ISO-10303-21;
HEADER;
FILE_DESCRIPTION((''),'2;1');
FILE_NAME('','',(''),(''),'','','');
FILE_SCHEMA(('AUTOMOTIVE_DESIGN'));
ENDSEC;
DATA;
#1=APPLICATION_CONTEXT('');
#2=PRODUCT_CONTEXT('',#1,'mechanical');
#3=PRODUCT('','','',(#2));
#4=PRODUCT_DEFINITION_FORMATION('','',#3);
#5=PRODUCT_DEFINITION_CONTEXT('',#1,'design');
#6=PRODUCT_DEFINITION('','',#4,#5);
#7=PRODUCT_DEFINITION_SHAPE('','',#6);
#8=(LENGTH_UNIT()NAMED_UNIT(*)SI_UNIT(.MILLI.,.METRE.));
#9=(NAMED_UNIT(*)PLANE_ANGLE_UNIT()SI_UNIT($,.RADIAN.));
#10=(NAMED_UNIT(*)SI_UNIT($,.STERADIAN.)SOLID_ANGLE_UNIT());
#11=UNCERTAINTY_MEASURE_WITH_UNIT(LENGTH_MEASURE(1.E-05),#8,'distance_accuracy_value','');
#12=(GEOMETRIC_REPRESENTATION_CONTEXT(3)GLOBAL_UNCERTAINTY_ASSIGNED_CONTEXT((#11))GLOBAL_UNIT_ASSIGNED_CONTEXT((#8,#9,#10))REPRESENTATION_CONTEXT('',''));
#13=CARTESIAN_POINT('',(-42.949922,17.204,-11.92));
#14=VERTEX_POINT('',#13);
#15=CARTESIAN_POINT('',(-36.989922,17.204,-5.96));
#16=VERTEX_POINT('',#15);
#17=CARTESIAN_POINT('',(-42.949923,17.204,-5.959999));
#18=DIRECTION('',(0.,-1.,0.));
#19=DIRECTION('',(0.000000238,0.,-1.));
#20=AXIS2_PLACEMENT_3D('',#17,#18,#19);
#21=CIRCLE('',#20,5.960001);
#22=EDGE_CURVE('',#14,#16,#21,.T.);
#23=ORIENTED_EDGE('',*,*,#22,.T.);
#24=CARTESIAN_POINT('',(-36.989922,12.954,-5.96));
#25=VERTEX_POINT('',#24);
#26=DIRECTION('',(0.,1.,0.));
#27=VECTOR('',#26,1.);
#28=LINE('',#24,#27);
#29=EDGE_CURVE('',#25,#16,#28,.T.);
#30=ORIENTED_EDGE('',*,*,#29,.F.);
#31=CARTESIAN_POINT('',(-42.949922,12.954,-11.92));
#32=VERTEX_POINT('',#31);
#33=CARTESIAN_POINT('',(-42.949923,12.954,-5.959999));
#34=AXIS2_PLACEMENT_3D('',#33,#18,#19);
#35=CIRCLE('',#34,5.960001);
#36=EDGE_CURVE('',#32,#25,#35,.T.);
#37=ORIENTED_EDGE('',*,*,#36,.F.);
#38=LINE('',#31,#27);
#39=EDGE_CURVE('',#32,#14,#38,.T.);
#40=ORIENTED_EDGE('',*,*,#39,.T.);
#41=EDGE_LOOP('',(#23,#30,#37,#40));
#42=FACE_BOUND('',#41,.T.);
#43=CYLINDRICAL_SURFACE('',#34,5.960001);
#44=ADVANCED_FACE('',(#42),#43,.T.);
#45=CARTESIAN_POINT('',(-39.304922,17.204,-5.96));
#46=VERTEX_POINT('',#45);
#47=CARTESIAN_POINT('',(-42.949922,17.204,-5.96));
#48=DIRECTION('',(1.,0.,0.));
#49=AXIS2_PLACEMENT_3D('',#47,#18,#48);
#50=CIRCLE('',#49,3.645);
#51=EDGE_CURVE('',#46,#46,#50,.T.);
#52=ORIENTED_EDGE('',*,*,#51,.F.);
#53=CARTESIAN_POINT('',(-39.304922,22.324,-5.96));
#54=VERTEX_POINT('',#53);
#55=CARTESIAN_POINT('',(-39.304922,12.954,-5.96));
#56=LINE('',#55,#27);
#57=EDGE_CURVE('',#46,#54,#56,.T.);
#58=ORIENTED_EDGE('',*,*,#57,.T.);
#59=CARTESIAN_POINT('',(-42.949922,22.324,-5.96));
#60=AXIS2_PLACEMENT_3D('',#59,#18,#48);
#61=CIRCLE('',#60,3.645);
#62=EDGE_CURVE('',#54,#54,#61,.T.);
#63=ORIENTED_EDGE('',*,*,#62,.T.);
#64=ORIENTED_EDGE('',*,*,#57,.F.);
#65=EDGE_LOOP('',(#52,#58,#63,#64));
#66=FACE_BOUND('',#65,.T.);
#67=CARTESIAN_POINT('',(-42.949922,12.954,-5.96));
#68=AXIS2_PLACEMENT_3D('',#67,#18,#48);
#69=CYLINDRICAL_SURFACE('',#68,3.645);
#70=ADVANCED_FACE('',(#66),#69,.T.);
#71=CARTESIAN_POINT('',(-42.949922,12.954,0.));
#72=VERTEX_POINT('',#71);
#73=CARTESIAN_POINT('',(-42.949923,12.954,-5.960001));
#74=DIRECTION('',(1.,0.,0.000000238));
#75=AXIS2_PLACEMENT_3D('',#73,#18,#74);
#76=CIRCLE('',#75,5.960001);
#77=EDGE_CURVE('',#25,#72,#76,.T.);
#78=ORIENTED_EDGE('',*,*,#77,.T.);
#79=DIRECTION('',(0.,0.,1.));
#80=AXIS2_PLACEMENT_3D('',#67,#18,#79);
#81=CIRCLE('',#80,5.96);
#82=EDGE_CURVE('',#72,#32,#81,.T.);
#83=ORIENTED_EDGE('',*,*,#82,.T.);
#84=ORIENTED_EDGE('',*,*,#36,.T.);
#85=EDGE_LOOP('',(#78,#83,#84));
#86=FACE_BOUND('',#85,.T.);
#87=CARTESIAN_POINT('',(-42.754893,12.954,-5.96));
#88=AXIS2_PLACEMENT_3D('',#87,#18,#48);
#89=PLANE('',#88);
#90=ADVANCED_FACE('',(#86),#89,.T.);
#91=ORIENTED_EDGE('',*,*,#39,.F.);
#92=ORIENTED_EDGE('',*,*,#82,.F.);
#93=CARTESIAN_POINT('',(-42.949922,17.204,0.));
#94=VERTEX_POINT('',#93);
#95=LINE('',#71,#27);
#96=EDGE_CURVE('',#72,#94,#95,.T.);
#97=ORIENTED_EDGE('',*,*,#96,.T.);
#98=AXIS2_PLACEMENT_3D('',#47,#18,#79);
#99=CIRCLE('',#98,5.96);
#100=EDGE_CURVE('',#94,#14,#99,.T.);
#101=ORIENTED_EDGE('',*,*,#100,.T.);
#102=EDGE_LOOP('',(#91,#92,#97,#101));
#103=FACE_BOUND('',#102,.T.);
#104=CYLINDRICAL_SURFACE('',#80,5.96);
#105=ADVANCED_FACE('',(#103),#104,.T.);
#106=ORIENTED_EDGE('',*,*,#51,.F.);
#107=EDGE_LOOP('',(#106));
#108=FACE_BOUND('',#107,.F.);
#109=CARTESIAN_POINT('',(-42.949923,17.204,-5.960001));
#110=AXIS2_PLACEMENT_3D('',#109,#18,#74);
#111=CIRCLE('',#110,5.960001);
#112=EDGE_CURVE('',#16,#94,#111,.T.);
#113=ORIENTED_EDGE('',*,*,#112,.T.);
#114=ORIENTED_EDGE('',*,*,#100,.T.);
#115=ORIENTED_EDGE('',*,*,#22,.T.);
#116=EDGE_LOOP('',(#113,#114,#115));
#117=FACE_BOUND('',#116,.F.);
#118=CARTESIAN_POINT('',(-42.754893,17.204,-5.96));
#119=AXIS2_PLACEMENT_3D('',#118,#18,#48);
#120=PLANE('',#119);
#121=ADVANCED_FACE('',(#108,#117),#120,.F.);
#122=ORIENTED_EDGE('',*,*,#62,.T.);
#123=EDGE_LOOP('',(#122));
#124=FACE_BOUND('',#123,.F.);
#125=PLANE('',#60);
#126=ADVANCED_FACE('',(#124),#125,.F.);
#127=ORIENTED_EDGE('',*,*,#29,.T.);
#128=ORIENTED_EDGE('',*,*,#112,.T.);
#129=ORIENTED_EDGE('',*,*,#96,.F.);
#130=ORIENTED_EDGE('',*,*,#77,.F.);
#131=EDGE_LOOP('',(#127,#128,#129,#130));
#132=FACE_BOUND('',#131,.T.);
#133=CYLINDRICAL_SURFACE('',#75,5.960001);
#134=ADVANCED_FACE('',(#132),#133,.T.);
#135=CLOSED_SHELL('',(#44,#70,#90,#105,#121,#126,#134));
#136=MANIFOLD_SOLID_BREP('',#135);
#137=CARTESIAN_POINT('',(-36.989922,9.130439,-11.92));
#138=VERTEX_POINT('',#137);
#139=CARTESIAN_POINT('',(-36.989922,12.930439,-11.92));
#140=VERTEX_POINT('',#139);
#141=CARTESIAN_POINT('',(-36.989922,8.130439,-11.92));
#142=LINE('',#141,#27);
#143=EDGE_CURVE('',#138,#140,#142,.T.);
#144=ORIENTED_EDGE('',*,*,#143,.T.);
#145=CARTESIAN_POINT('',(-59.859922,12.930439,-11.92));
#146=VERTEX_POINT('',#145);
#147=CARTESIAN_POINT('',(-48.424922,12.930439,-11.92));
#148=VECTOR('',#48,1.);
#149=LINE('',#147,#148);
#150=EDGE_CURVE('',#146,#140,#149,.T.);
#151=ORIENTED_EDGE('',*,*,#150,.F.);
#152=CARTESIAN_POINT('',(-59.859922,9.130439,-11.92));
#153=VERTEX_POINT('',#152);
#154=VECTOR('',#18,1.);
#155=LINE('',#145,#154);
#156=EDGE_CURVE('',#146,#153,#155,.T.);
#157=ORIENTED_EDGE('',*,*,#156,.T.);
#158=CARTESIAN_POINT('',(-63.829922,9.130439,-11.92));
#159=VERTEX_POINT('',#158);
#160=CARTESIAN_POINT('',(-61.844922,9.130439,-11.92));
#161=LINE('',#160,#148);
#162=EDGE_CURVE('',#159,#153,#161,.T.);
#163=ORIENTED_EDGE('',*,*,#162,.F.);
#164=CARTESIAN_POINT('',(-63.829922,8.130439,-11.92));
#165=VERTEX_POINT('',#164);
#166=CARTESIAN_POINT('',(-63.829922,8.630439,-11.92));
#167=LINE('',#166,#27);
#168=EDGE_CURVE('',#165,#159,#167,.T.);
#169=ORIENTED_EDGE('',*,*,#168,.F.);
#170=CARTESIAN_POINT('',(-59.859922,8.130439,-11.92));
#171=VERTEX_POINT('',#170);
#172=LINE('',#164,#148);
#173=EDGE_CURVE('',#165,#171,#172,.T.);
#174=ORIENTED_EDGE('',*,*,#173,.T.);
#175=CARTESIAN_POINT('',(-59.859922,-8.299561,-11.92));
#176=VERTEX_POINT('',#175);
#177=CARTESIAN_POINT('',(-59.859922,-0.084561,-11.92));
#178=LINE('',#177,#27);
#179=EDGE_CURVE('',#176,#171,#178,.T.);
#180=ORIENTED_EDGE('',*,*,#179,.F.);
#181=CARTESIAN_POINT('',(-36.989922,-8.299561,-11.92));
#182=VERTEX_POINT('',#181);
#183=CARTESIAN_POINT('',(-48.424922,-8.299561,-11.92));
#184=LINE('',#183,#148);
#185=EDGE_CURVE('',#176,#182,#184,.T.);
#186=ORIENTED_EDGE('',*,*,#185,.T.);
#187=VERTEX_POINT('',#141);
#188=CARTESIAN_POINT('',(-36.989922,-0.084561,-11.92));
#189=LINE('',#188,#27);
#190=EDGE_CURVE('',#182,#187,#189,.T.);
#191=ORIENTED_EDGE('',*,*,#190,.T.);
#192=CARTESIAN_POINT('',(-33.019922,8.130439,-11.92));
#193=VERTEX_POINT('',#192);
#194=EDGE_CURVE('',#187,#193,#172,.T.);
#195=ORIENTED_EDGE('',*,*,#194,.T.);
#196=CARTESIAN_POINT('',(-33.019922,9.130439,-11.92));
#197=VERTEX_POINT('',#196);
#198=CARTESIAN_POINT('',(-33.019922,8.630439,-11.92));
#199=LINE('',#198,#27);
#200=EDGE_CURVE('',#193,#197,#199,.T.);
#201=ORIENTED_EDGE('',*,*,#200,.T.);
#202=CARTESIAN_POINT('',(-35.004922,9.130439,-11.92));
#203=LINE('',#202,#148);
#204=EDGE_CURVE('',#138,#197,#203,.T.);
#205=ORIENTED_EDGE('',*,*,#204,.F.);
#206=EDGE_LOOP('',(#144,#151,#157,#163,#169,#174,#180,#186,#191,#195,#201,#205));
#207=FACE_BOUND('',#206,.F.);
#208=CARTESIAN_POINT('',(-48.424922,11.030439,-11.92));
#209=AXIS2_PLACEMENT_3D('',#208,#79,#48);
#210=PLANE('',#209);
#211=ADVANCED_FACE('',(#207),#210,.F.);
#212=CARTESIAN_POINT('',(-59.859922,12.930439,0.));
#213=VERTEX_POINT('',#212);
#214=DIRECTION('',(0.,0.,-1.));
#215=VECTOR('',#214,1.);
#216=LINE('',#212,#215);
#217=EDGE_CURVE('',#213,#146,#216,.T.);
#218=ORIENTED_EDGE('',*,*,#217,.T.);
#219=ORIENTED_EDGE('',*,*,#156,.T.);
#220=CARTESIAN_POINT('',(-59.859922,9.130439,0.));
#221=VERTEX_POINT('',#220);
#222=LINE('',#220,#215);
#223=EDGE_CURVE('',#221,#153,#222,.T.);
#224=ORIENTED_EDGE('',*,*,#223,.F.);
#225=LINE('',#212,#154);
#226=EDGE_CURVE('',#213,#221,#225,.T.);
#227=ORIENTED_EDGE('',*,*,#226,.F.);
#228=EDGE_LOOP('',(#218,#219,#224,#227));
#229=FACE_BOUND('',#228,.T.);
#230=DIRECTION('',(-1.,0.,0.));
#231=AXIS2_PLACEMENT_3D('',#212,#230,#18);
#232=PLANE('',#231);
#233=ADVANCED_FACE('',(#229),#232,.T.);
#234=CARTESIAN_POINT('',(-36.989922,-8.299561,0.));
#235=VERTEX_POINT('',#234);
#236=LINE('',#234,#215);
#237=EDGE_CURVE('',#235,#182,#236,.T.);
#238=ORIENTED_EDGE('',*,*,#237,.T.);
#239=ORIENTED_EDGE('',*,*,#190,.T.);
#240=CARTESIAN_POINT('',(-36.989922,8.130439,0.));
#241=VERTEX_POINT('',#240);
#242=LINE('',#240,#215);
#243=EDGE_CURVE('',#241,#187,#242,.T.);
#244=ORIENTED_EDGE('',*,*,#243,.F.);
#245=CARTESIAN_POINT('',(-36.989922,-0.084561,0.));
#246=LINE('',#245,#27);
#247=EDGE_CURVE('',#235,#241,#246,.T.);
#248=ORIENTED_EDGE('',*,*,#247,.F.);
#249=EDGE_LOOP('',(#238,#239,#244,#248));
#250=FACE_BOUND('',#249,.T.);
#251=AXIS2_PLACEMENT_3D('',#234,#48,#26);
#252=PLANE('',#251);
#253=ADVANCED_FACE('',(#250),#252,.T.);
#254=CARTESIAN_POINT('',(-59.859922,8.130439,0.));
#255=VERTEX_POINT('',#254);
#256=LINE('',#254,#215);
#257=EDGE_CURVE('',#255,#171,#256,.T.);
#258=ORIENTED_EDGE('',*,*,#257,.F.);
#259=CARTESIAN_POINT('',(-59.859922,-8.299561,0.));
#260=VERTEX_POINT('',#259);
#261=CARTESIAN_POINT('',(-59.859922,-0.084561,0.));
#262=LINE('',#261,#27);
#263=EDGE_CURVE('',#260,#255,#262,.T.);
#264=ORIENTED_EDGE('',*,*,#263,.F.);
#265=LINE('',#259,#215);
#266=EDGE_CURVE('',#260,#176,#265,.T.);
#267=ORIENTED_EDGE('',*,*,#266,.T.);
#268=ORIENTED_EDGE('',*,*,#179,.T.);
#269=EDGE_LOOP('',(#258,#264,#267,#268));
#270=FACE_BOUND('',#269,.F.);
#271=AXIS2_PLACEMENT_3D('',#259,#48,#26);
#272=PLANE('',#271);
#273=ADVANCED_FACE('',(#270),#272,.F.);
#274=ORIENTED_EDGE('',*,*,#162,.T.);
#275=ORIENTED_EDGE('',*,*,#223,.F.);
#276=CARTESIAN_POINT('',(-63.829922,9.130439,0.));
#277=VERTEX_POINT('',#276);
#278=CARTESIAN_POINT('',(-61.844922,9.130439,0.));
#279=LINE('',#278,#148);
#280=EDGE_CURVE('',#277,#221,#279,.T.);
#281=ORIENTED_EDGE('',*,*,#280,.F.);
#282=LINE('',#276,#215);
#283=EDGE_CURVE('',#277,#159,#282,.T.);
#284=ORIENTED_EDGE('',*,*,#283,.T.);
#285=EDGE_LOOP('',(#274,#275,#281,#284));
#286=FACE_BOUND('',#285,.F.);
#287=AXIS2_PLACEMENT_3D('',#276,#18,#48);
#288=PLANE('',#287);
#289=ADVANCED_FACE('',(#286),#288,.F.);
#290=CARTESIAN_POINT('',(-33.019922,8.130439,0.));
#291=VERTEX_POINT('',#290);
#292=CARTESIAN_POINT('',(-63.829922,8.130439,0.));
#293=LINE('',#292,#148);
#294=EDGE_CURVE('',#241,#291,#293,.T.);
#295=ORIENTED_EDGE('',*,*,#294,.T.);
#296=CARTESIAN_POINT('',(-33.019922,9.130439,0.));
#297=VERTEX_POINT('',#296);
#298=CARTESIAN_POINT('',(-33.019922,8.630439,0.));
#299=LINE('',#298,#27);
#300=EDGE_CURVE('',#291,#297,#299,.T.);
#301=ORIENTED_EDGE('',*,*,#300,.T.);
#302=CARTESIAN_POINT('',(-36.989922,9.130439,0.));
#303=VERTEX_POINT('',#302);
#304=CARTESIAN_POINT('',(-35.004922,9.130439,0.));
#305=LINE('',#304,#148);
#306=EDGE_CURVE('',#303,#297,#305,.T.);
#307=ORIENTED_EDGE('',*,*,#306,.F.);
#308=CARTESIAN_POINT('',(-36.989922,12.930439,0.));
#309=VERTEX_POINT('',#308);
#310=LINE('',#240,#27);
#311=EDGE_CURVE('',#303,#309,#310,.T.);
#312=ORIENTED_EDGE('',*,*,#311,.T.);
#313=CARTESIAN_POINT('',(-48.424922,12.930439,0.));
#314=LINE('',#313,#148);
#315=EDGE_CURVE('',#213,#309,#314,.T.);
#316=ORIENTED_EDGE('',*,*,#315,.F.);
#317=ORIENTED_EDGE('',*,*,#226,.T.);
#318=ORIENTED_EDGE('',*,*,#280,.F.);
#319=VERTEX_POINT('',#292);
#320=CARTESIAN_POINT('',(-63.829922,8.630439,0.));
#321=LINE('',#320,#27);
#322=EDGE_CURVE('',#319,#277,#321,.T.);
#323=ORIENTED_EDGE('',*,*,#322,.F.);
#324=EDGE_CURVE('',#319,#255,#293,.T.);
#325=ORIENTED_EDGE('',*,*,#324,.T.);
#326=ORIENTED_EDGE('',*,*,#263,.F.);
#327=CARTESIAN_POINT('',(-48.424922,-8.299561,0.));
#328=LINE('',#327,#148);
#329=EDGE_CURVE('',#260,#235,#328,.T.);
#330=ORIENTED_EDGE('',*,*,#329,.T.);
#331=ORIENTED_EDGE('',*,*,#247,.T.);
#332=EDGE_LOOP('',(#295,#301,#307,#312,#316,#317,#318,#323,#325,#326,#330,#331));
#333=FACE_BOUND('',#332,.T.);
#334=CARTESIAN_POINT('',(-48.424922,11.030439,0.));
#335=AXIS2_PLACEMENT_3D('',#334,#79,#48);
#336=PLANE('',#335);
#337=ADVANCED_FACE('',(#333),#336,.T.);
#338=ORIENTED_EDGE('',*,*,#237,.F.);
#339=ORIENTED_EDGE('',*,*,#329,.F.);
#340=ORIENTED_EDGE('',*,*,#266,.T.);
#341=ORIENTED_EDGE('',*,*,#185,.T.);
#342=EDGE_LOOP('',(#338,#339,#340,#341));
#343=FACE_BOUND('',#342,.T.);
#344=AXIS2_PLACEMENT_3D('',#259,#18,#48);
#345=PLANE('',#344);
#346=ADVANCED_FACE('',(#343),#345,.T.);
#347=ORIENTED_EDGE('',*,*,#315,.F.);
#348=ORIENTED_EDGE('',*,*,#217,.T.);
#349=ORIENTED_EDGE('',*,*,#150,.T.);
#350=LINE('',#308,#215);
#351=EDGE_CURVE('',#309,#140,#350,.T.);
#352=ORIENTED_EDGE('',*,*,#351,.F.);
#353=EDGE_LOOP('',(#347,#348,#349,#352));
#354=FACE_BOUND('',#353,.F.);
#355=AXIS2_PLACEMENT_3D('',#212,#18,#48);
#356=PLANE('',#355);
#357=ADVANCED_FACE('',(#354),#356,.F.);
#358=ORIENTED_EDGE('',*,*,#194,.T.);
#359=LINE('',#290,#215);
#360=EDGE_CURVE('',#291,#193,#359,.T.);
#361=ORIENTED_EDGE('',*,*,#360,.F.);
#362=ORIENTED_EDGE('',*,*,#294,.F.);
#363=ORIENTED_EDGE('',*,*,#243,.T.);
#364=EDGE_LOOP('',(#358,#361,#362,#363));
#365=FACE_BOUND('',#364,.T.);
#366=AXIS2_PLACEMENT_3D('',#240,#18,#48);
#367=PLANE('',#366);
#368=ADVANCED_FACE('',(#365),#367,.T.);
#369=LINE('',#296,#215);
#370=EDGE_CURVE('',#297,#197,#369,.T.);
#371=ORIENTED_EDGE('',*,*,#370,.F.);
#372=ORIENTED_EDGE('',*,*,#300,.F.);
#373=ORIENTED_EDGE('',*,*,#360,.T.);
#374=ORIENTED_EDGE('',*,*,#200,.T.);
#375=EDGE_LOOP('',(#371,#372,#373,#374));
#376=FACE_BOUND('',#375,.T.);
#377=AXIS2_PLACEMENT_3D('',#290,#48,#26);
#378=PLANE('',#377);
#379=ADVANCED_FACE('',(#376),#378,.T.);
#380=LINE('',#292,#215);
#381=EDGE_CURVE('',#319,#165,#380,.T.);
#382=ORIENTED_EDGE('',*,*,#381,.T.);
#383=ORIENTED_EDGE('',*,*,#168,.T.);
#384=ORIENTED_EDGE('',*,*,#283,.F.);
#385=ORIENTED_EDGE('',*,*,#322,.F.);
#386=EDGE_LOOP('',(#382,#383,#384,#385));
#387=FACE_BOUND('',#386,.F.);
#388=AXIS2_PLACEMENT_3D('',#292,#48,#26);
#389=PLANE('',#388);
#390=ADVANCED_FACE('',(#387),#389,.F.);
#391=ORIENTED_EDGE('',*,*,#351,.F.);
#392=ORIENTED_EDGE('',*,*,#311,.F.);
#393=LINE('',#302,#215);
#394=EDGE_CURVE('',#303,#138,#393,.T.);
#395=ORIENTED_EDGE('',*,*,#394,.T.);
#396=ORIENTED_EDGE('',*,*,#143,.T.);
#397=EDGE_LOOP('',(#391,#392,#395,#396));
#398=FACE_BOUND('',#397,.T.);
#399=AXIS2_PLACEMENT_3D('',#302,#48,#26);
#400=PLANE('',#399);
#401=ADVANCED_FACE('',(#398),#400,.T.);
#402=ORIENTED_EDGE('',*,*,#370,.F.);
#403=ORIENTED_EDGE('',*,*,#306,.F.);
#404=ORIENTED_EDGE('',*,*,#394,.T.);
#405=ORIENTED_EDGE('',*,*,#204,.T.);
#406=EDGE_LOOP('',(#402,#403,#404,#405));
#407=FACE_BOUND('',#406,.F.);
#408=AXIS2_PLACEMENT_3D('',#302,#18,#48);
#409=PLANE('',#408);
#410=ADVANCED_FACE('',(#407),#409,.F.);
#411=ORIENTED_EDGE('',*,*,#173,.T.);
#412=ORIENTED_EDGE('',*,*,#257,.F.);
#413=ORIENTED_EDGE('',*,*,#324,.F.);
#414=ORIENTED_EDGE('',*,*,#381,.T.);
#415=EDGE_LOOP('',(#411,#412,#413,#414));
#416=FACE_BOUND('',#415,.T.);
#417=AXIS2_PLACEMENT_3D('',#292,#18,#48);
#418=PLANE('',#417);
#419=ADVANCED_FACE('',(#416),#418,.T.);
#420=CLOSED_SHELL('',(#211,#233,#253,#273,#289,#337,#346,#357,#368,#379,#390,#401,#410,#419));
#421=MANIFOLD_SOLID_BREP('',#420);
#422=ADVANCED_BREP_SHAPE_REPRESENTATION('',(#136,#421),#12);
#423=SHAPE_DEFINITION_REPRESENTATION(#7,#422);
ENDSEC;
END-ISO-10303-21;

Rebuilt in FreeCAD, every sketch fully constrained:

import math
import FreeCAD as App
import Part
import Sketcher

V = App.Vector

doc = App.newDocument("Part")
body = doc.addObject("PartDesign::Body", "Body")

sketch1 = body.newObject("Sketcher::SketchObject", "Sketch")
sketch1.AttachmentSupport = (doc.getObject("XY_Plane"), [""])
sketch1.MapMode = "FlatFace"
sketch1.addGeometry(Part.LineSegment(V(-59.9, 12.9, 0), V(-59.9, 9.1, 0)), False)
sketch1.addGeometry(Part.LineSegment(V(-59.9, 9.1, 0), V(-63.8, 9.1, 0)), False)
sketch1.addGeometry(Part.LineSegment(V(-63.8, 9.1, 0), V(-63.8, 8.1, 0)), False)
sketch1.addGeometry(Part.LineSegment(V(-63.8, 8.1, 0), V(-59.9, 8.1, 0)), False)
sketch1.addGeometry(Part.LineSegment(V(-59.9, 8.1, 0), V(-59.9, -8.3, 0)), False)
sketch1.addGeometry(Part.LineSegment(V(-59.9, -8.3, 0), V(-37, -8.3, 0)), False)
sketch1.addGeometry(Part.LineSegment(V(-37, -8.3, 0), V(-37, 8.1, 0)), False)
sketch1.addGeometry(Part.LineSegment(V(-37, 8.1, 0), V(-33, 8.1, 0)), False)
sketch1.addGeometry(Part.LineSegment(V(-33, 8.1, 0), V(-33, 9.1, 0)), False)
sketch1.addGeometry(Part.LineSegment(V(-33, 9.1, 0), V(-37, 9.1, 0)), False)
sketch1.addGeometry(Part.LineSegment(V(-37, 9.1, 0), V(-37, 12.9, 0)), False)
sketch1.addGeometry(Part.LineSegment(V(-37, 12.9, 0), V(-59.9, 12.9, 0)), False)
sketch1.addConstraint(Sketcher.Constraint("Coincident", 0, 2, 1, 1))
sketch1.addConstraint(Sketcher.Constraint("Coincident", 1, 2, 2, 1))
sketch1.addConstraint(Sketcher.Constraint("Coincident", 2, 2, 3, 1))
sketch1.addConstraint(Sketcher.Constraint("Coincident", 3, 2, 4, 1))
sketch1.addConstraint(Sketcher.Constraint("Coincident", 4, 2, 5, 1))
sketch1.addConstraint(Sketcher.Constraint("Coincident", 5, 2, 6, 1))
sketch1.addConstraint(Sketcher.Constraint("Coincident", 6, 2, 7, 1))
sketch1.addConstraint(Sketcher.Constraint("Coincident", 7, 2, 8, 1))
sketch1.addConstraint(Sketcher.Constraint("Coincident", 8, 2, 9, 1))
sketch1.addConstraint(Sketcher.Constraint("Coincident", 9, 2, 10, 1))
sketch1.addConstraint(Sketcher.Constraint("Coincident", 10, 2, 11, 1))
sketch1.addConstraint(Sketcher.Constraint("Coincident", 11, 2, 0, 1))
sketch1.addConstraint(Sketcher.Constraint("Vertical", 0))
sketch1.addConstraint(Sketcher.Constraint("Horizontal", 1))
sketch1.addConstraint(Sketcher.Constraint("Vertical", 2))
sketch1.addConstraint(Sketcher.Constraint("Horizontal", 3))
sketch1.addConstraint(Sketcher.Constraint("Vertical", 4))
sketch1.addConstraint(Sketcher.Constraint("Horizontal", 5))
sketch1.addConstraint(Sketcher.Constraint("Vertical", 6))
sketch1.addConstraint(Sketcher.Constraint("Horizontal", 7))
sketch1.addConstraint(Sketcher.Constraint("Vertical", 8))
sketch1.addConstraint(Sketcher.Constraint("Horizontal", 9))
sketch1.addConstraint(Sketcher.Constraint("Vertical", 10))
sketch1.addConstraint(Sketcher.Constraint("Horizontal", 11))
sketch1.addConstraint(Sketcher.Constraint("Horizontal", 3, 2, 6, 2))
sketch1.addConstraint(Sketcher.Constraint("Horizontal", 1, 2, 8, 2))
sketch1.addConstraint(Sketcher.Constraint("Vertical", 0, 2, 3, 2))
sketch1.addConstraint(Sketcher.Constraint("Vertical", 6, 2, 9, 2))
sketch1.addConstraint(Sketcher.Constraint("Equal", 3, 7))
sketch1.addConstraint(Sketcher.Constraint("DistanceY", 2, 2, 2, 1, 1.0))
sketch1.addConstraint(Sketcher.Constraint("DistanceY", 0, 2, 0, 1, 3.8))
sketch1.addConstraint(Sketcher.Constraint("DistanceX", 1, 2, 1, 1, 3.97))
sketch1.addConstraint(Sketcher.Constraint("DistanceX", 5, 1, 5, 2, 22.87))
sketch1.addConstraint(Sketcher.Constraint("DistanceY", 4, 2, 4, 1, 16.43))
sketch1.addConstraint(Sketcher.Constraint("DistanceX", 0, 2, -1, 1, 59.859922))
sketch1.addConstraint(Sketcher.Constraint("DistanceY", -1, 1, 0, 2, 9.130439))
pad1 = body.newObject("PartDesign::Pad", "Pad")
pad1.Profile = sketch1
pad1.Length = 11.92
pad1.Reversed = True
body2 = doc.addObject("PartDesign::Body", "Body001")

sketch2 = body2.newObject("Sketcher::SketchObject", "Sketch001")
sketch2.AttachmentSupport = (doc.getObject("XZ_Plane001"), [""])
sketch2.MapMode = "FlatFace"
sketch2.AttachmentOffset = App.Placement(V(0, 0, -12.954), App.Rotation())
sketch2.addGeometry(Part.Circle(V(-42.9, -6, 0), V(0, 0, 1), 3.6), False)
sketch2.addConstraint(Sketcher.Constraint("Diameter", 0, 7.29))
sketch2.addConstraint(Sketcher.Constraint("DistanceY", 0, 3, -1, 1, 5.96))
sketch2.addConstraint(Sketcher.Constraint("DistanceX", 0, 3, -1, 1, 42.949922))
pad2 = body2.newObject("PartDesign::Pad", "Pad001")
pad2.Profile = sketch2
pad2.Length = 9.37
pad2.Reversed = True

sketch3 = body2.newObject("Sketcher::SketchObject", "Sketch002")
sketch3.AttachmentSupport = (doc.getObject("XZ_Plane001"), [""])
sketch3.MapMode = "FlatFace"
sketch3.AttachmentOffset = App.Placement(V(0, 0, -12.954), App.Rotation())
sketch3.addGeometry(Part.ArcOfCircle(Part.Circle(V(-42.9, -6, 0), V(0, 0, 1), 6), math.radians(-90), math.radians(0)), False)
sketch3.addGeometry(Part.ArcOfCircle(Part.Circle(V(-42.9, -6, 0), V(0, 0, 1), 6), math.radians(0), math.radians(90)), False)
sketch3.addGeometry(Part.ArcOfCircle(Part.Circle(V(-42.9, -6, 0), V(0, 0, 1), 6), math.radians(90), math.radians(270)), False)
sketch3.addGeometry(Part.Circle(V(-42.9, -6, 0), V(0, 0, 1), 3.6), False)
sketch3.addConstraint(Sketcher.Constraint("Tangent", 0, 2, 1, 1))
sketch3.addConstraint(Sketcher.Constraint("Tangent", 1, 2, 2, 1))
sketch3.addConstraint(Sketcher.Constraint("Tangent", 2, 2, 0, 1))
sketch3.addConstraint(Sketcher.Constraint("Coincident", 3, 3, 0, 3))
sketch3.addConstraint(Sketcher.Constraint("PointOnObject", 1, 2, -1))
sketch3.addConstraint(Sketcher.Constraint("Horizontal", 3, 3, 0, 2))
sketch3.addConstraint(Sketcher.Constraint("Vertical", 3, 3, 1, 2))
sketch3.addConstraint(Sketcher.Constraint("Vertical", 1, 2, 2, 2))
sketch3.addConstraint(Sketcher.Constraint("Diameter", 3, 7.29))
sketch3.addConstraint(Sketcher.Constraint("Radius", 0, 5.960001))
sketch3.addConstraint(Sketcher.Constraint("DistanceX", 0, 3, -1, 1, 42.949923))
pad3 = body2.newObject("PartDesign::Pad", "Pad002")
pad3.Profile = sketch3
pad3.Length = 4.25
pad3.Reversed = True

doc.recompute()
